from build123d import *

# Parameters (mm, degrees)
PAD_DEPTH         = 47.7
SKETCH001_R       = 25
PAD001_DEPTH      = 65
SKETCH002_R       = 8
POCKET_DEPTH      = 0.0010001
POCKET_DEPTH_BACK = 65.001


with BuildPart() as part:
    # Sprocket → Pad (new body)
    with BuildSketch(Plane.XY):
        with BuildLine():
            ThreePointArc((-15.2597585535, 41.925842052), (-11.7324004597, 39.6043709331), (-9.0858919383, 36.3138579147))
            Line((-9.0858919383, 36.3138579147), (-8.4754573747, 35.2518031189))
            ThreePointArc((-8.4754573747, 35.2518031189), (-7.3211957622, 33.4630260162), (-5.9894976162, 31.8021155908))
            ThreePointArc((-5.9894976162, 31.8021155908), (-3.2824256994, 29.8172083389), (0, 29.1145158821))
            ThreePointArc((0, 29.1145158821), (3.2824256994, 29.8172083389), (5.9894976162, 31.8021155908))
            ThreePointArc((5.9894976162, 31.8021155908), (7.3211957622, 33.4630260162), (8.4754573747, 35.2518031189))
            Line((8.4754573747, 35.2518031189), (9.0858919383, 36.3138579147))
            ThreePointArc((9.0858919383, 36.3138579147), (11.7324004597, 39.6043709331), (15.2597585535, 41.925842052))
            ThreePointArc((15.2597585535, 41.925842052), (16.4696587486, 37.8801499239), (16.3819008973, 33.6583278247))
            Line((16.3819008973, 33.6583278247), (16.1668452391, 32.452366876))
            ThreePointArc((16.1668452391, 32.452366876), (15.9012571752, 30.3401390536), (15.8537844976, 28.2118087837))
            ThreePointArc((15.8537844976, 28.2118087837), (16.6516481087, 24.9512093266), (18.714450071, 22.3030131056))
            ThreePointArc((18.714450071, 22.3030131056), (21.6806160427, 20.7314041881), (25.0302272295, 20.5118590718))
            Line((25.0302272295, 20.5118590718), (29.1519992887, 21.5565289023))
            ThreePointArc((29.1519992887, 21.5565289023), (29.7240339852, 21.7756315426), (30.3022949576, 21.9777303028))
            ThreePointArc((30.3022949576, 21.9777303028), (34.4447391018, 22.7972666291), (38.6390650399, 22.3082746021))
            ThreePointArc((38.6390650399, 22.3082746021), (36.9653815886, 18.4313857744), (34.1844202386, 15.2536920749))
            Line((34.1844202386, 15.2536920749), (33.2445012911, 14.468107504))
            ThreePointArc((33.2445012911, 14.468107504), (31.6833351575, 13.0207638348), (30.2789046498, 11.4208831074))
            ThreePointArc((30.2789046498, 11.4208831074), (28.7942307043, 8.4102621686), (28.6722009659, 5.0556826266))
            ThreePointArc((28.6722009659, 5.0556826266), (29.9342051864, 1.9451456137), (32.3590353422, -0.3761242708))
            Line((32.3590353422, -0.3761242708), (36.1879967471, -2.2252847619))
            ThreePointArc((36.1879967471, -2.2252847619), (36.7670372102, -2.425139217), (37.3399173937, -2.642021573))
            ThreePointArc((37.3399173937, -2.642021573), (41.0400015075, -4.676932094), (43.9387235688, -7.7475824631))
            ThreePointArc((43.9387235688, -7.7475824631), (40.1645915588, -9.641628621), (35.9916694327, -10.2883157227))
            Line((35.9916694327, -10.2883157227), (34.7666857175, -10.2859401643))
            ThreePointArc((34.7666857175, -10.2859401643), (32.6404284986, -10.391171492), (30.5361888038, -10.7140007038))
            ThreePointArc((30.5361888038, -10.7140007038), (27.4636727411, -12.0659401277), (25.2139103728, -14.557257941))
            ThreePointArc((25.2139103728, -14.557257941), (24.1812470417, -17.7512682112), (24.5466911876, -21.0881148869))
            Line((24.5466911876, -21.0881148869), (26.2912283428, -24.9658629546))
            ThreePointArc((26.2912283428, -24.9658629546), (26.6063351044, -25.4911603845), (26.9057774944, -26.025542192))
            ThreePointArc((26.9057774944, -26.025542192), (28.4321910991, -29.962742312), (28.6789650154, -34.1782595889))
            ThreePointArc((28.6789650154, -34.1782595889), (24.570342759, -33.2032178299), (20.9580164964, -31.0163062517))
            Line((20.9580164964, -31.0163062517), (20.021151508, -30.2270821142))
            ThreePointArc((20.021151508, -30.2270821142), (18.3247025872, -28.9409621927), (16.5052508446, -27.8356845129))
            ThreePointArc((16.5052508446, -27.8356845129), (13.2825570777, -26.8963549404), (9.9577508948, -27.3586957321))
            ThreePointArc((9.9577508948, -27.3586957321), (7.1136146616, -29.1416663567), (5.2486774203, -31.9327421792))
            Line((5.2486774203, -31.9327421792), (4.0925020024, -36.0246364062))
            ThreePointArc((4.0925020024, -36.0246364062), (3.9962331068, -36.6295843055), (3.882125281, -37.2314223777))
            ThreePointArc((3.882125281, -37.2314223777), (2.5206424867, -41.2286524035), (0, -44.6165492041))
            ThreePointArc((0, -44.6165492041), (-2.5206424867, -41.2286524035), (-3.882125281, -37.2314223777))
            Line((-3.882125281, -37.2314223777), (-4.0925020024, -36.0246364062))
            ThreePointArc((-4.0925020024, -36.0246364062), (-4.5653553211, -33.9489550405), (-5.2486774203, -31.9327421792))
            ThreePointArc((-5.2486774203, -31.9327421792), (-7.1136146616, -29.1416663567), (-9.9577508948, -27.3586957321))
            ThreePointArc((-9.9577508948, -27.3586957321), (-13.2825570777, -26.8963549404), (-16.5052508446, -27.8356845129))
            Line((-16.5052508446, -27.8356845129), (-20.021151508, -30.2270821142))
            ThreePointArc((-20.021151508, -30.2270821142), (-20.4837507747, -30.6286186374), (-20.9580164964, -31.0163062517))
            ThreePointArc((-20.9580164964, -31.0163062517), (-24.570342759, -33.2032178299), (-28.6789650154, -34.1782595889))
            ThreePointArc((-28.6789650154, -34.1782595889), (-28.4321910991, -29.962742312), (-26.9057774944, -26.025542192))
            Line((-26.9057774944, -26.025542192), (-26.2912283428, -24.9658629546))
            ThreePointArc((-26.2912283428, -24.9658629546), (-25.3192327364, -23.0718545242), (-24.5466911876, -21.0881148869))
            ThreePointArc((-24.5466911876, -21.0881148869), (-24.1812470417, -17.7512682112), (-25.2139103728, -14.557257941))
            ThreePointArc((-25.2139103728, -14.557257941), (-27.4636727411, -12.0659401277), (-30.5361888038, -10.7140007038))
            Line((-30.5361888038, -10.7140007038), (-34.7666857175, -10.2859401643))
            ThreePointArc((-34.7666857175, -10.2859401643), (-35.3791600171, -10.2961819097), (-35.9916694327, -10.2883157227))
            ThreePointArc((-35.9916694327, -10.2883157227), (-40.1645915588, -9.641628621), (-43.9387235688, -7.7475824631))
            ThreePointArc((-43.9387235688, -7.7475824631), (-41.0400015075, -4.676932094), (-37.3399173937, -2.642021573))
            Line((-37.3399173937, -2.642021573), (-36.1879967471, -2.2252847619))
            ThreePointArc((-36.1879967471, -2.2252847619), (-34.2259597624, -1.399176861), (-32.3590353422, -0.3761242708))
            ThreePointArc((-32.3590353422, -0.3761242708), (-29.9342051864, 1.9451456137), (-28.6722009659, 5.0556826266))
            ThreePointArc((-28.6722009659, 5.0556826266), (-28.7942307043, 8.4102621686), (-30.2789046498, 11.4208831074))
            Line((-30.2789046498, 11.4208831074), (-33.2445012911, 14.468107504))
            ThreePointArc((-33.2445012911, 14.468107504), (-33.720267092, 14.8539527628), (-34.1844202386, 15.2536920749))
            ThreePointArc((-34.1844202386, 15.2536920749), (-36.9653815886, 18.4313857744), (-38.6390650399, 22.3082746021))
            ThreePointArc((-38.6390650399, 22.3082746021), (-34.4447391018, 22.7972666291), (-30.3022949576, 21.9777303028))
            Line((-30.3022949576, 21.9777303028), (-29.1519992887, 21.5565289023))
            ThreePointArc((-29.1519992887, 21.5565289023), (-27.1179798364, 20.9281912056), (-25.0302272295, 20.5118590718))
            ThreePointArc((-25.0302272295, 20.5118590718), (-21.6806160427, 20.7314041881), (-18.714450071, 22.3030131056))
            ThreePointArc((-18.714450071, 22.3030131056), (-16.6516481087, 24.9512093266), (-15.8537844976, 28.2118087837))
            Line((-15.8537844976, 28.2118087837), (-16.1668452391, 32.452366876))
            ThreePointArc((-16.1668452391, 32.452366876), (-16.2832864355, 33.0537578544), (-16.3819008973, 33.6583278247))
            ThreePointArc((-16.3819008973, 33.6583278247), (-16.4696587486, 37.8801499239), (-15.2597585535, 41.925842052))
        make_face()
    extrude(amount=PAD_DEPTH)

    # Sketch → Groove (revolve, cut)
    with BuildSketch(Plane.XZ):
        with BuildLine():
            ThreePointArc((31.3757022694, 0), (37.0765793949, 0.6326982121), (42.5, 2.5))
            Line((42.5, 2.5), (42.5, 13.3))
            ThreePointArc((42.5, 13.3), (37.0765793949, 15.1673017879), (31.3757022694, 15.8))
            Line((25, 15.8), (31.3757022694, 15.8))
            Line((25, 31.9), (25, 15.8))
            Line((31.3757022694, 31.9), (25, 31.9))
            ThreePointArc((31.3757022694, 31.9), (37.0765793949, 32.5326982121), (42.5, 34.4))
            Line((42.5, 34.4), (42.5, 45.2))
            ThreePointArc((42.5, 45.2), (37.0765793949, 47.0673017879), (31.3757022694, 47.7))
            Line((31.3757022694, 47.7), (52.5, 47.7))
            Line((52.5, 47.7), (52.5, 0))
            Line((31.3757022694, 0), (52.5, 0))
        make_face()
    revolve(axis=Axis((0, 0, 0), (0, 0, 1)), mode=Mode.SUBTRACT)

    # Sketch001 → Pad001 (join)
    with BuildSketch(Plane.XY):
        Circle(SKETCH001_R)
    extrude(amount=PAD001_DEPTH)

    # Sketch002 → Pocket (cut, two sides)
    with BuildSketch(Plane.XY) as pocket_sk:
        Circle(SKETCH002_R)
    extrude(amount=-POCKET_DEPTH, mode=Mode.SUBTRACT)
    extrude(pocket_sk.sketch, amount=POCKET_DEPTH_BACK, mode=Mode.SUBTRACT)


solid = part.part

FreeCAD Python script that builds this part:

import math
import FreeCAD as App
import Part
import Sketcher

doc = App.newDocument("Part")
body = doc.addObject("PartDesign::Body", "Body")

sketch1 = body.newObject("Sketcher::SketchObject", "Sketch")
sketch1.AttachmentSupport = (doc.getObject("XY_Plane"), [""])
sketch1.MapMode = "FlatFace"
sketch1.addGeometry(Part.ArcOfCircle(Part.Circle(App.Vector(-20.891246, 29.528524, 0), App.Vector(0, 0, 1), 13.616429), math.radians(29.888889), math.radians(65.570053)), False)
sketch1.addGeometry(Part.ArcOfCircle(Part.Circle(App.Vector(-2.976946, 36.048796, 0), App.Vector(0, 0, 1), 13.616429), math.radians(154.429947), math.radians(190.111111)), False)
sketch1.addGeometry(Part.ArcOfCircle(Part.Circle(App.Vector(4.116686, 36.691628, 0), App.Vector(0, 0, 1), 20.7218), math.radians(-171.582679), math.radians(-168.195099)), False)
sketch1.addGeometry(Part.LineSegment(App.Vector(-16.166845, 32.452367, 0), App.Vector(-15.853784, 28.211809, 0)), False)
sketch1.addGeometry(Part.ArcOfCircle(Part.Circle(App.Vector(-23.868193, 28.445004, 0), App.Vector(0, 0, 1), 8.0178), math.radians(-50), math.radians(-1.666667)), False)
sketch1.addGeometry(Part.ArcOfCircle(Part.Circle(App.Vector(-23.868193, 28.445004, 0), App.Vector(0, 0, 1), 8.0178), math.radians(-98.333333), math.radians(-50)), False)
sketch1.addGeometry(Part.ArcOfCircle(Part.Circle(App.Vector(-22.026978, 41.014871, 0), App.Vector(0, 0, 1), 20.7218), math.radians(-110.111111), math.radians(-98.333333)), False)
sketch1.addGeometry(Part.LineSegment(App.Vector(-29.151999, 21.556529, 0), App.Vector(-30.302295, 21.97773, 0)), False)
sketch1.addGeometry(Part.ArcOfCircle(Part.Circle(App.Vector(-34.984193, 9.191527, 0), App.Vector(0, 0, 1), 13.616429), math.radians(69.888889), math.radians(105.570053)), False)
sketch1.addGeometry(Part.ArcOfCircle(Part.Circle(App.Vector(-25.452193, 25.701436, 0), App.Vector(0, 0, 1), 13.616429), math.radians(-165.570053), math.radians(-129.888889)), False)
sketch1.addGeometry(Part.ArcOfCircle(Part.Circle(App.Vector(-20.431359, 30.753573, 0), App.Vector(0, 0, 1), 20.7218), math.radians(-131.582679), math.radians(-128.195099)), False)
sketch1.addGeometry(Part.LineSegment(App.Vector(-33.244501, 14.468108, 0), App.Vector(-30.278905, 11.420883, 0)), False)
sketch1.addGeometry(Part.ArcOfCircle(Part.Circle(App.Vector(-36.568193, 6.447959, 0), App.Vector(0, 0, 1), 8.0178), math.radians(-10), math.radians(38.333333)), False)
sketch1.addGeometry(Part.ArcOfCircle(Part.Circle(App.Vector(-36.568193, 6.447959, 0), App.Vector(0, 0, 1), 8.0178), math.radians(-58.333333), math.radians(-10)), False)
sketch1.addGeometry(Part.ArcOfCircle(Part.Circle(App.Vector(-43.237495, 17.260545, 0), App.Vector(0, 0, 1), 20.7218), math.radians(-70.111111), math.radians(-58.333333)), False)
sketch1.addGeometry(Part.LineSegment(App.Vector(-36.187997, -2.225285, 0), App.Vector(-37.339917, -2.642022, 0)), False)
sketch1.addGeometry(Part.ArcOfCircle(Part.Circle(App.Vector(-32.707646, -15.446287, 0), App.Vector(0, 0, 1), 13.616429), math.radians(109.888889), math.radians(145.570053)), False)
sketch1.addGeometry(Part.ArcOfCircle(Part.Circle(App.Vector(-36.018075, 3.328088, 0), App.Vector(0, 0, 1), 13.616429), math.radians(-125.570053), math.radians(-89.888889)), False)
sketch1.addGeometry(Part.ArcOfCircle(Part.Circle(App.Vector(-35.419345, 10.425579, 0), App.Vector(0, 0, 1), 20.7218), math.radians(-91.582679), math.radians(-88.195099)), False)
sketch1.addGeometry(Part.LineSegment(App.Vector(-34.766686, -10.28594, 0), App.Vector(-30.536189, -10.714001, 0)), False)
sketch1.addGeometry(Part.ArcOfCircle(Part.Circle(App.Vector(-32.157529, -18.566158, 0), App.Vector(0, 0, 1), 8.0178), math.radians(30), math.radians(78.333333)), False)
sketch1.addGeometry(Part.ArcOfCircle(Part.Circle(App.Vector(-32.157529, -18.566158, 0), App.Vector(0, 0, 1), 8.0178), math.radians(-18.333333), math.radians(30)), False)
sketch1.addGeometry(Part.ArcOfCircle(Part.Circle(App.Vector(-44.216707, -14.570181, 0), App.Vector(0, 0, 1), 20.7218), math.radians(-30.111111), math.radians(-18.333333)), False)
sketch1.addGeometry(Part.LineSegment(App.Vector(-26.291228, -24.965863, 0), App.Vector(-26.905777, -26.025542, 0)), False)
sketch1.addGeometry(Part.ArcOfCircle(Part.Circle(App.Vector(-15.126829, -32.856612, 0), App.Vector(0, 0, 1), 13.616429), math.radians(149.888889), math.radians(185.570053)), False)
sketch1.addGeometry(Part.ArcOfCircle(Part.Circle(App.Vector(-29.7307, -20.602509, 0), App.Vector(0, 0, 1), 13.616429), math.radians(-85.570053), math.radians(-49.888889)), False)
sketch1.addGeometry(Part.ArcOfCircle(Part.Circle(App.Vector(-33.834225, -14.780659, 0), App.Vector(0, 0, 1), 20.7218), math.radians(-51.582679), math.radians(-48.195099)), False)
sketch1.addGeometry(Part.LineSegment(App.Vector(-20.021152, -30.227082, 0), App.Vector(-16.505251, -27.835685, 0)), False)
sketch1.addGeometry(Part.ArcOfCircle(Part.Circle(App.Vector(-12.7, -34.892963, 0), App.Vector(0, 0, 1), 8.0178), math.radians(70), math.radians(118.333333)), False)
sketch1.addGeometry(Part.ArcOfCircle(Part.Circle(App.Vector(-12.7, -34.892963, 0), App.Vector(0, 0, 1), 8.0178), math.radians(21.666667), math.radians(70)), False)
sketch1.addGeometry(Part.ArcOfCircle(Part.Circle(App.Vector(-24.506431, -39.583358, 0), App.Vector(0, 0, 1), 20.7218), math.radians(9.888889), math.radians(21.666667)), False)
sketch1.addGeometry(Part.LineSegment(App.Vector(-4.092502, -36.024636, 0), App.Vector(-3.882125, -37.231422, 0)), False)
sketch1.addGeometry(Part.ArcOfCircle(Part.Circle(App.Vector(9.532, -34.892963, 0), App.Vector(0, 0, 1), 13.616429), math.radians(-170.111111), math.radians(-134.429947)), False)
sketch1.addGeometry(Part.ArcOfCircle(Part.Circle(App.Vector(-9.532, -34.892963, 0), App.Vector(0, 0, 1), 13.616429), math.radians(-45.570053), math.radians(-9.888889)), False)
sketch1.addGeometry(Part.ArcOfCircle(Part.Circle(App.Vector(-16.417696, -33.070863, 0), App.Vector(0, 0, 1), 20.7218), math.radians(-11.582679), math.radians(-8.195099)), False)
sketch1.addGeometry(Part.LineSegment(App.Vector(4.092502, -36.024636, 0), App.Vector(5.248677, -31.932742, 0)), False)
sketch1.addGeometry(Part.ArcOfCircle(Part.Circle(App.Vector(12.7, -34.892963, 0), App.Vector(0, 0, 1), 8.0178), math.radians(110), math.radians(158.333333)), False)
sketch1.addGeometry(Part.ArcOfCircle(Part.Circle(App.Vector(12.7, -34.892963, 0), App.Vector(0, 0, 1), 8.0178), math.radians(61.666667), math.radians(110)), False)
sketch1.addGeometry(Part.ArcOfCircle(Part.Circle(App.Vector(6.670677, -46.075042, 0), App.Vector(0, 0, 1), 20.7218), math.radians(49.888889), math.radians(61.666667)), False)
sketch1.addGeometry(Part.LineSegment(App.Vector(20.021152, -30.227082, 0), App.Vector(20.958016, -31.016306, 0)), False)
sketch1.addGeometry(Part.ArcOfCircle(Part.Circle(App.Vector(29.7307, -20.602509, 0), App.Vector(0, 0, 1), 13.616429), math.radians(-130.111111), math.radians(-94.429947)), False)
sketch1.addGeometry(Part.ArcOfCircle(Part.Circle(App.Vector(15.126829, -32.856612, 0), App.Vector(0, 0, 1), 13.616429), math.radians(-5.570053), math.radians(30.111111)), False)
sketch1.addGeometry(Part.ArcOfCircle(Part.Circle(App.Vector(8.680856, -35.886842, 0), App.Vector(0, 0, 1), 20.7218), math.radians(28.417321), math.radians(31.804901)), False)
sketch1.addGeometry(Part.LineSegment(App.Vector(26.291228, -24.965863, 0), App.Vector(24.546691, -21.088115, 0)), False)
sketch1.addGeometry(Part.ArcOfCircle(Part.Circle(App.Vector(32.157529, -18.566158, 0), App.Vector(0, 0, 1), 8.0178), math.radians(150), math.radians(198.333333)), False)
sketch1.addGeometry(Part.ArcOfCircle(Part.Circle(App.Vector(32.157529, -18.566158, 0), App.Vector(0, 0, 1), 8.0178), math.radians(101.666667), math.radians(150)), False)
sketch1.addGeometry(Part.ArcOfCircle(Part.Circle(App.Vector(34.726501, -31.007701, 0), App.Vector(0, 0, 1), 20.7218), math.radians(89.888889), math.radians(101.666667)), False)
sketch1.addGeometry(Part.LineSegment(App.Vector(34.766686, -10.28594, 0), App.Vector(35.991669, -10.288316, 0)), False)
sketch1.addGeometry(Part.ArcOfCircle(Part.Circle(App.Vector(36.018075, 3.328088, 0), App.Vector(0, 0, 1), 13.616429), math.radians(-90.111111), math.radians(-54.429947)), False)
sketch1.addGeometry(Part.ArcOfCircle(Part.Circle(App.Vector(32.707646, -15.446287, 0), App.Vector(0, 0, 1), 13.616429), math.radians(34.429947), math.radians(70.111111)), False)
sketch1.addGeometry(Part.ArcOfCircle(Part.Circle(App.Vector(29.717539, -21.910969, 0), App.Vector(0, 0, 1), 20.7218), math.radians(68.417321), math.radians(71.804901)), False)
sketch1.addGeometry(Part.LineSegment(App.Vector(36.187997, -2.225285, 0), App.Vector(32.359035, -0.376124, 0)), False)
sketch1.addGeometry(Part.ArcOfCircle(Part.Circle(App.Vector(36.568193, 6.447959, 0), App.Vector(0, 0, 1), 8.0178), math.radians(-170), math.radians(-121.666667)), False)
sketch1.addGeometry(Part.ArcOfCircle(Part.Circle(App.Vector(36.568193, 6.447959, 0), App.Vector(0, 0, 1), 8.0178), math.radians(141.666667), math.radians(190)), False)
sketch1.addGeometry(Part.ArcOfCircle(Part.Circle(App.Vector(46.533409, -1.431513, 0), App.Vector(0, 0, 1), 20.7218), math.radians(129.888889), math.radians(141.666667)), False)
sketch1.addGeometry(Part.LineSegment(App.Vector(33.244501, 14.468108, 0), App.Vector(34.18442, 15.253692, 0)), False)
sketch1.addGeometry(Part.ArcOfCircle(Part.Circle(App.Vector(25.452193, 25.701436, 0), App.Vector(0, 0, 1), 13.616429), math.radians(-50.111111), math.radians(-14.429947)), False)
sketch1.addGeometry(Part.ArcOfCircle(Part.Circle(App.Vector(34.984193, 9.191527, 0), App.Vector(0, 0, 1), 13.616429), math.radians(74.429947), math.radians(110.111111)), False)
sketch1.addGeometry(Part.ArcOfCircle(Part.Circle(App.Vector(36.849055, 2.31729, 0), App.Vector(0, 0, 1), 20.7218), math.radians(108.417321), math.radians(111.804901)), False)
sketch1.addGeometry(Part.LineSegment(App.Vector(29.151999, 21.556529, 0), App.Vector(25.030227, 20.511859, 0)), False)
sketch1.addGeometry(Part.ArcOfCircle(Part.Circle(App.Vector(23.868193, 28.445004, 0), App.Vector(0, 0, 1), 8.0178), math.radians(-130), math.radians(-81.666667)), False)
sketch1.addGeometry(Part.ArcOfCircle(Part.Circle(App.Vector(23.868193, 28.445004, 0), App.Vector(0, 0, 1), 8.0178), math.radians(-178.333333), math.radians(-130)), False)
sketch1.addGeometry(Part.ArcOfCircle(Part.Circle(App.Vector(36.566818, 28.814497, 0), App.Vector(0, 0, 1), 20.7218), math.radians(169.888889), math.radians(181.666667)), False)
sketch1.addGeometry(Part.LineSegment(App.Vector(16.166845, 32.452367, 0), App.Vector(16.381901, 33.658328, 0)), False)
sketch1.addGeometry(Part.ArcOfCircle(Part.Circle(App.Vector(2.976946, 36.048796, 0), App.Vector(0, 0, 1), 13.616429), math.radians(-10.111111), math.radians(25.570053)), False)
sketch1.addGeometry(Part.ArcOfCircle(Part.Circle(App.Vector(20.891246, 29.528524, 0), App.Vector(0, 0, 1), 13.616429), math.radians(114.429947), math.radians(150.111111)), False)
sketch1.addGeometry(Part.LineSegment(App.Vector(9.085892, 36.313858, 0), App.Vector(8.475457, 35.251803, 0)), False)
sketch1.addGeometry(Part.ArcOfCircle(Part.Circle(App.Vector(-9.490207, 45.577883, 0), App.Vector(0, 0, 1), 20.7218), math.radians(-41.666667), math.radians(-29.888889)), False)
sketch1.addGeometry(Part.ArcOfCircle(Part.Circle(App.Vector(0, 37.132316, 0), App.Vector(0, 0, 1), 8.0178), math.radians(-90), math.radians(-41.666667)), False)
sketch1.addGeometry(Part.ArcOfCircle(Part.Circle(App.Vector(0, 37.132316, 0), App.Vector(0, 0, 1), 8.0178), math.radians(-138.333333), math.radians(-90)), False)
sketch1.addGeometry(Part.ArcOfCircle(Part.Circle(App.Vector(9.490207, 45.577883, 0), App.Vector(0, 0, 1), 20.7218), math.radians(-150.111111), math.radians(-138.333333)), False)
sketch1.addGeometry(Part.LineSegment(App.Vector(-8.475457, 35.251803, 0), App.Vector(-9.085892, 36.313858, 0)), False)
sketch1.addConstraint(Sketcher.Constraint("Coincident", 0, 2, 1, 1))
sketch1.addConstraint(Sketcher.Constraint("Coincident", 1, 2, 2, 1))
sketch1.addConstraint(Sketcher.Constraint("Coincident", 2, 2, 3, 1))
sketch1.addConstraint(Sketcher.Constraint("Coincident", 3, 2, 4, 2))
sketch1.addConstraint(Sketcher.Constraint("Tangent", 4, 1, 5, 2))
sketch1.addConstraint(Sketcher.Constraint("Tangent", 5, 1, 6, 2))
sketch1.addConstraint(Sketcher.Constraint("Tangent", 6, 1, 7, 1))
sketch1.addConstraint(Sketcher.Constraint("Tangent", 7, 2, 8, 1))
sketch1.addConstraint(Sketcher.Constraint("Coincident", 8, 2, 9, 1))
sketch1.addConstraint(Sketcher.Constraint("Coincident", 9, 2, 10, 1))
sketch1.addConstraint(Sketcher.Constraint("Coincident", 10, 2, 11, 1))
sketch1.addConstraint(Sketcher.Constraint("Coincident", 11, 2, 12, 2))
sketch1.addConstraint(Sketcher.Constraint("Tangent", 12, 1, 13, 2))
sketch1.addConstraint(Sketcher.Constraint("Tangent", 13, 1, 14, 2))
sketch1.addConstraint(Sketcher.Constraint("Tangent", 14, 1, 15, 1))
sketch1.addConstraint(Sketcher.Constraint("Tangent", 15, 2, 16, 1))
sketch1.addConstraint(Sketcher.Constraint("Coincident", 16, 2, 17, 1))
sketch1.addConstraint(Sketcher.Constraint("Coincident", 17, 2, 18, 1))
sketch1.addConstraint(Sketcher.Constraint("Coincident", 18, 2, 19, 1))
sketch1.addConstraint(Sketcher.Constraint("Coincident", 19, 2, 20, 2))
sketch1.addConstraint(Sketcher.Constraint("Tangent", 20, 1, 21, 2))
sketch1.addConstraint(Sketcher.Constraint("Tangent", 21, 1, 22, 2))
sketch1.addConstraint(Sketcher.Constraint("Tangent", 22, 1, 23, 1))
sketch1.addConstraint(Sketcher.Constraint("Tangent", 23, 2, 24, 1))
sketch1.addConstraint(Sketcher.Constraint("Coincident", 24, 2, 25, 1))
sketch1.addConstraint(Sketcher.Constraint("Coincident", 25, 2, 26, 1))
sketch1.addConstraint(Sketcher.Constraint("Coincident", 26, 2, 27, 1))
sketch1.addConstraint(Sketcher.Constraint("Coincident", 27, 2, 28, 2))
sketch1.addConstraint(Sketcher.Constraint("Tangent", 28, 1, 29, 2))
sketch1.addConstraint(Sketcher.Constraint("Tangent", 29, 1, 30, 2))
sketch1.addConstraint(Sketcher.Constraint("Tangent", 30, 1, 31, 1))
sketch1.addConstraint(Sketcher.Constraint("Tangent", 31, 2, 32, 1))
sketch1.addConstraint(Sketcher.Constraint("Coincident", 32, 2, 33, 1))
sketch1.addConstraint(Sketcher.Constraint("Coincident", 33, 2, 34, 1))
sketch1.addConstraint(Sketcher.Constraint("Coincident", 34, 2, 35, 1))
sketch1.addConstraint(Sketcher.Constraint("Coincident", 35, 2, 36, 2))
sketch1.addConstraint(Sketcher.Constraint("Tangent", 36, 1, 37, 2))
sketch1.addConstraint(Sketcher.Constraint("Tangent", 37, 1, 38, 2))
sketch1.addConstraint(Sketcher.Constraint("Tangent", 38, 1, 39, 1))
sketch1.addConstraint(Sketcher.Constraint("Tangent", 39, 2, 40, 1))
sketch1.addConstraint(Sketcher.Constraint("Coincident", 40, 2, 41, 1))
sketch1.addConstraint(Sketcher.Constraint("Coincident", 41, 2, 42, 1))
sketch1.addConstraint(Sketcher.Constraint("Coincident", 42, 2, 43, 1))
sketch1.addConstraint(Sketcher.Constraint("Coincident", 43, 2, 44, 2))
sketch1.addConstraint(Sketcher.Constraint("Tangent", 44, 1, 45, 2))
sketch1.addConstraint(Sketcher.Constraint("Tangent", 45, 1, 46, 2))
sketch1.addConstraint(Sketcher.Constraint("Tangent", 46, 1, 47, 1))
sketch1.addConstraint(Sketcher.Constraint("Tangent", 47, 2, 48, 1))
sketch1.addConstraint(Sketcher.Constraint("Coincident", 48, 2, 49, 1))
sketch1.addConstraint(Sketcher.Constraint("Coincident", 49, 2, 50, 1))
sketch1.addConstraint(Sketcher.Constraint("Coincident", 50, 2, 51, 1))
sketch1.addConstraint(Sketcher.Constraint("Coincident", 51, 2, 52, 2))
sketch1.addConstraint(Sketcher.Constraint("Tangent", 52, 1, 53, 2))
sketch1.addConstraint(Sketcher.Constraint("Tangent", 53, 1, 54, 2))
sketch1.addConstraint(Sketcher.Constraint("Tangent", 54, 1, 55, 1))
sketch1.addConstraint(Sketcher.Constraint("Tangent", 55, 2, 56, 1))
sketch1.addConstraint(Sketcher.Constraint("Coincident", 56, 2, 57, 1))
sketch1.addConstraint(Sketcher.Constraint("Coincident", 57, 2, 58, 1))
sketch1.addConstraint(Sketcher.Constraint("Coincident", 58, 2, 59, 1))
sketch1.addConstraint(Sketcher.Constraint("Coincident", 59, 2, 60, 2))
sketch1.addConstraint(Sketcher.Constraint("Tangent", 60, 1, 61, 2))
sketch1.addConstraint(Sketcher.Constraint("Tangent", 61, 1, 62, 2))
sketch1.addConstraint(Sketcher.Constraint("Tangent", 62, 1, 63, 1))
sketch1.addConstraint(Sketcher.Constraint("Tangent", 63, 2, 64, 1))
sketch1.addConstraint(Sketcher.Constraint("Coincident", 64, 2, 65, 1))
sketch1.addConstraint(Sketcher.Constraint("Tangent", 65, 2, 66, 1))
sketch1.addConstraint(Sketcher.Constraint("Tangent", 66, 2, 67, 2))
sketch1.addConstraint(Sketcher.Constraint("Tangent", 67, 1, 68, 2))
sketch1.addConstraint(Sketcher.Constraint("Tangent", 68, 1, 69, 2))
sketch1.addConstraint(Sketcher.Constraint("Tangent", 69, 1, 70, 2))
sketch1.addConstraint(Sketcher.Constraint("Tangent", 70, 1, 71, 1))
sketch1.addConstraint(Sketcher.Constraint("Tangent", 71, 2, 0, 1))
sketch1.addConstraint(Sketcher.Constraint("Equal", 0, 1))
sketch1.addConstraint(Sketcher.Constraint("Equal", 4, 5))
sketch1.addConstraint(Sketcher.Constraint("Equal", 2, 6))
sketch1.addConstraint(Sketcher.Constraint("Equal", 1, 8))
sketch1.addConstraint(Sketcher.Constraint("Equal", 8, 9))
sketch1.addConstraint(Sketcher.Constraint("Equal", 6, 10))
sketch1.addConstraint(Sketcher.Constraint("Equal", 5, 12))
sketch1.addConstraint(Sketcher.Constraint("Equal", 12, 13))
sketch1.addConstraint(Sketcher.Constraint("Equal", 10, 14))
sketch1.addConstraint(Sketcher.Constraint("Equal", 9, 16))
sketch1.addConstraint(Sketcher.Constraint("Equal", 16, 17))
sketch1.addConstraint(Sketcher.Constraint("Equal", 14, 18))
sketch1.addConstraint(Sketcher.Constraint("Equal", 13, 20))
sketch1.addConstraint(Sketcher.Constraint("Equal", 20, 21))
sketch1.addConstraint(Sketcher.Constraint("Equal", 18, 22))
sketch1.addConstraint(Sketcher.Constraint("Equal", 17, 24))
sketch1.addConstraint(Sketcher.Constraint("Equal", 24, 25))
sketch1.addConstraint(Sketcher.Constraint("Equal", 22, 26))
sketch1.addConstraint(Sketcher.Constraint("Equal", 21, 28))
sketch1.addConstraint(Sketcher.Constraint("Equal", 28, 29))
sketch1.addConstraint(Sketcher.Constraint("Equal", 26, 30))
sketch1.addConstraint(Sketcher.Constraint("Equal", 25, 32))
sketch1.addConstraint(Sketcher.Constraint("Equal", 32, 33))
sketch1.addConstraint(Sketcher.Constraint("Equal", 30, 34))
sketch1.addConstraint(Sketcher.Constraint("Equal", 29, 36))
sketch1.addConstraint(Sketcher.Constraint("Equal", 36, 37))
sketch1.addConstraint(Sketcher.Constraint("Equal", 34, 38))
sketch1.addConstraint(Sketcher.Constraint("Equal", 33, 40))
sketch1.addConstraint(Sketcher.Constraint("Equal", 40, 41))
sketch1.addConstraint(Sketcher.Constraint("Equal", 38, 42))
sketch1.addConstraint(Sketcher.Constraint("Equal", 37, 44))
sketch1.addConstraint(Sketcher.Constraint("Equal", 44, 45))
sketch1.addConstraint(Sketcher.Constraint("Equal", 42, 46))
sketch1.addConstraint(Sketcher.Constraint("Equal", 41, 48))
sketch1.addConstraint(Sketcher.Constraint("Equal", 48, 49))
sketch1.addConstraint(Sketcher.Constraint("Equal", 46, 50))
sketch1.addConstraint(Sketcher.Constraint("Equal", 45, 52))
sketch1.addConstraint(Sketcher.Constraint("Equal", 52, 53))
sketch1.addConstraint(Sketcher.Constraint("Equal", 50, 54))
sketch1.addConstraint(Sketcher.Constraint("Equal", 49, 56))
sketch1.addConstraint(Sketcher.Constraint("Equal", 56, 57))
sketch1.addConstraint(Sketcher.Constraint("Equal", 54, 58))
sketch1.addConstraint(Sketcher.Constraint("Equal", 53, 60))
sketch1.addConstraint(Sketcher.Constraint("Equal", 60, 61))
sketch1.addConstraint(Sketcher.Constraint("Equal", 58, 62))
sketch1.addConstraint(Sketcher.Constraint("Equal", 57, 64))
sketch1.addConstraint(Sketcher.Constraint("Equal", 64, 65))
sketch1.addConstraint(Sketcher.Constraint("Equal", 62, 67))
sketch1.addConstraint(Sketcher.Constraint("Equal", 61, 68))
sketch1.addConstraint(Sketcher.Constraint("Equal", 68, 69))
sketch1.addConstraint(Sketcher.Constraint("Equal", 67, 70))
sketch1.addConstraint(Sketcher.Constraint("Symmetric", 32, 3, 33, 3, -2))
sketch1.addConstraint(Sketcher.Constraint("Symmetric", 28, 3, 36, 3, -2))
sketch1.addConstraint(Sketcher.Constraint("Symmetric", 25, 3, 40, 3, -2))
sketch1.addConstraint(Sketcher.Constraint("Symmetric", 24, 3, 41, 3, -2))
sketch1.addConstraint(Sketcher.Constraint("Symmetric", 20, 3, 44, 3, -2))
sketch1.addConstraint(Sketcher.Constraint("Symmetric", 17, 3, 48, 3, -2))
sketch1.addConstraint(Sketcher.Constraint("Symmetric", 16, 3, 49, 3, -2))
sketch1.addConstraint(Sketcher.Constraint("Symmetric", 12, 3, 52, 3, -2))
sketch1.addConstraint(Sketcher.Constraint("Symmetric", 9, 3, 56, 3, -2))
sketch1.addConstraint(Sketcher.Constraint("Symmetric", 8, 3, 57, 3, -2))
sketch1.addConstraint(Sketcher.Constraint("Symmetric", 4, 3, 60, 3, -2))
sketch1.addConstraint(Sketcher.Constraint("Symmetric", 1, 3, 64, 3, -2))
sketch1.addConstraint(Sketcher.Constraint("Symmetric", 0, 3, 65, 3, -2))
sketch1.addConstraint(Sketcher.Constraint("Symmetric", 67, 3, 70, 3, -2))
sketch1.addConstraint(Sketcher.Constraint("Symmetric", 30, 1, 34, 2, -2))
sketch1.addConstraint(Sketcher.Constraint("Symmetric", 26, 2, 38, 1, -2))
sketch1.addConstraint(Sketcher.Constraint("Symmetric", 22, 1, 42, 2, -2))
sketch1.addConstraint(Sketcher.Constraint("Symmetric", 18, 2, 46, 1, -2))
sketch1.addConstraint(Sketcher.Constraint("Symmetric", 14, 1, 50, 2, -2))
sketch1.addConstraint(Sketcher.Constraint("Symmetric", 10, 2, 54, 1, -2))
sketch1.addConstraint(Sketcher.Constraint("Symmetric", 6, 1, 58, 2, -2))
sketch1.addConstraint(Sketcher.Constraint("Symmetric", 2, 2, 62, 1, -2))
sketch1.addConstraint(Sketcher.Constraint("PointOnObject", 68, 1, -2))
sketch1.addConstraint(Sketcher.Constraint("Horizontal", 29, 3, 32, 3))
sketch1.addConstraint(Sketcher.Constraint("Horizontal", 31, 2, 33, 2))
sketch1.addConstraint(Sketcher.Constraint("Horizontal", 29, 1, 35, 2))
sketch1.addConstraint(Sketcher.Constraint("Horizontal", 28, 1, 36, 1))
sketch1.addConstraint(Sketcher.Constraint("Horizontal", 27, 2, 37, 1))
sketch1.addConstraint(Sketcher.Constraint("Horizontal", 25, 2, 39, 2))
sketch1.addConstraint(Sketcher.Constraint("Horizontal", 23, 2, 41, 2))
sketch1.addConstraint(Sketcher.Constraint("Horizontal", 21, 1, 43, 2))
sketch1.addConstraint(Sketcher.Constraint("Horizontal", 20, 1, 44, 1))
sketch1.addConstraint(Sketcher.Constraint("Horizontal", 19, 2, 45, 1))
sketch1.addConstraint(Sketcher.Constraint("Horizontal", 17, 2, 47, 2))
sketch1.addConstraint(Sketcher.Constraint("Horizontal", 15, 2, 49, 2))
sketch1.addConstraint(Sketcher.Constraint("Horizontal", 13, 1, 51, 2))
sketch1.addConstraint(Sketcher.Constraint("Horizontal", 12, 1, 52, 1))
sketch1.addConstraint(Sketcher.Constraint("Horizontal", 11, 2, 53, 1))
sketch1.addConstraint(Sketcher.Constraint("Horizontal", 9, 2, 55, 2))
sketch1.addConstraint(Sketcher.Constraint("Horizontal", 7, 2, 57, 2))
sketch1.addConstraint(Sketcher.Constraint("Horizontal", 5, 1, 59, 2))
sketch1.addConstraint(Sketcher.Constraint("Horizontal", 4, 1, 60, 1))
sketch1.addConstraint(Sketcher.Constraint("Horizontal", 3, 2, 61, 1))
sketch1.addConstraint(Sketcher.Constraint("Horizontal", 1, 2, 63, 2))
sketch1.addConstraint(Sketcher.Constraint("Equal", 3, 11))
sketch1.addConstraint(Sketcher.Constraint("Equal", 7, 15))
sketch1.addConstraint(Sketcher.Constraint("Equal", 11, 19))
sketch1.addConstraint(Sketcher.Constraint("Equal", 15, 23))
sketch1.addConstraint(Sketcher.Constraint("Equal", 19, 27))
sketch1.addConstraint(Sketcher.Constraint("Equal", 23, 31))
sketch1.addConstraint(Sketcher.Constraint("Equal", 27, 35))
sketch1.addConstraint(Sketcher.Constraint("Equal", 31, 39))
sketch1.addConstraint(Sketcher.Constraint("Equal", 35, 43))
sketch1.addConstraint(Sketcher.Constraint("Equal", 39, 47))
sketch1.addConstraint(Sketcher.Constraint("Equal", 43, 51))
sketch1.addConstraint(Sketcher.Constraint("Equal", 47, 55))
sketch1.addConstraint(Sketcher.Constraint("Equal", 51, 59))
sketch1.addConstraint(Sketcher.Constraint("Equal", 55, 63))
sketch1.addConstraint(Sketcher.Constraint("Equal", 63, 66))
sketch1.addConstraint(Sketcher.Constraint("DistanceX", 28, 3, -1, 1, 12.7))
sketch1.addConstraint(Sketcher.Constraint("Radius", 2, 20.7218))
sketch1.addConstraint(Sketcher.Constraint("Radius", 4, 8.0178))
sketch1.addConstraint(Sketcher.Constraint("Radius", 0, 13.616429))
sketch1.addConstraint(Sketcher.Constraint("DistanceX", -1, 1, 32, 3, 9.532))
sketch1.addConstraint(Sketcher.Constraint("DistanceX", 6, 1, -1, 1, 29.151999))
sketch1.addConstraint(Sketcher.Constraint("DistanceY", 19, 2, -1, 1, 10.714001))
sketch1.addConstraint(Sketcher.Constraint("Distance", 3, 4.252098))
sketch1.addConstraint(Sketcher.Constraint("DistanceX", 25, 3, -1, 1, 29.7307))
sketch1.addConstraint(Sketcher.Constraint("DistanceX", -1, 1, 46, 3, 34.726501))
sketch1.addConstraint(Sketcher.Constraint("DistanceY", 46, 3, -1, 1, 31.007701))
sketch1.addConstraint(Sketcher.Constraint("DistanceX", 1, 2, -1, 1, 16.381901))
sketch1.addConstraint(Sketcher.Constraint("DistanceX", 10, 2, -1, 1, 33.244501))
sketch1.addConstraint(Sketcher.Constraint("DistanceX", 12, 1, -1, 1, 28.672201))
sketch1.addConstraint(Sketcher.Constraint("DistanceY", -1, 1, 2, 3, 36.691628))
sketch1.addConstraint(Sketcher.Constraint("DistanceX", 6, 3, -1, 1, 22.026978))
sketch1.addConstraint(Sketcher.Constraint("DistanceX", 10, 3, -1, 1, 20.431359))
sketch1.addConstraint(Sketcher.Constraint("DistanceY", -1, 1, 12, 3, 6.447959))
sketch1.addConstraint(Sketcher.Constraint("DistanceY", 22, 3, -1, 1, 14.570181))
sketch1.addConstraint(Sketcher.Constraint("DistanceY", 25, 3, -1, 1, 20.602509))
sketch1.addConstraint(Sketcher.Constraint("DistanceX", -1, 1, 50, 3, 29.717539))
sketch1.addConstraint(Sketcher.Constraint("DistanceX", 0, 2, -1, 1, 15.259759))
sketch1.addConstraint(Sketcher.Constraint("DistanceX", 4, 1, -1, 1, 18.71445))
sketch1.addConstraint(Sketcher.Constraint("DistanceX", 20, 1, -1, 1, 25.21391))
sketch1.addConstraint(Sketcher.Constraint("DistanceX", 28, 1, -1, 1, 9.957751))
sketch1.addConstraint(Sketcher.Constraint("DistanceX", -1, 1, 65, 2, 9.085892))
sketch1.addConstraint(Sketcher.Constraint("DistanceX", 0, 3, -1, 1, 20.891246))
pad1 = body.newObject("PartDesign::Pad", "Pad")
pad1.Profile = sketch1
pad1.Length = 47.7

sketch2 = body.newObject("Sketcher::SketchObject", "Sketch001")
sketch2.AttachmentSupport = (doc.getObject("XZ_Plane"), [""])
sketch2.MapMode = "FlatFace"
sketch2.addGeometry(Part.ArcOfCircle(Part.Circle(App.Vector(31, 26, 0), App.Vector(0, 0, 1), 26), math.radians(-90), math.radians(-65)), False)
sketch2.addGeometry(Part.LineSegment(App.Vector(31, 0, 0), App.Vector(52, 0, 0)), False)
sketch2.addGeometry(Part.LineSegment(App.Vector(52, 0, 0), App.Vector(52, 48, 0)), False)
sketch2.addGeometry(Part.LineSegment(App.Vector(52, 48, 0), App.Vector(31, 48, 0)), False)
sketch2.addGeometry(Part.ArcOfCircle(Part.Circle(App.Vector(31, 22, 0), App.Vector(0, 0, 1), 26), math.radians(65), math.radians(90)), False)
sketch2.addGeometry(Part.LineSegment(App.Vector(42, 45, 0), App.Vector(42, 34, 0)), False)
sketch2.addGeometry(Part.ArcOfCircle(Part.Circle(App.Vector(31, 58, 0), App.Vector(0, 0, 1), 26), math.radians(-90), math.radians(-65)), False)
sketch2.addGeometry(Part.LineSegment(App.Vector(31, 32, 0), App.Vector(25, 32, 0)), False)
sketch2.addGeometry(Part.LineSegment(App.Vector(25, 32, 0), App.Vector(25, 16, 0)), False)
sketch2.addGeometry(Part.LineSegment(App.Vector(25, 16, 0), App.Vector(31, 16, 0)), False)
sketch2.addGeometry(Part.ArcOfCircle(Part.Circle(App.Vector(31, -10, 0), App.Vector(0, 0, 1), 26), math.radians(65), math.radians(90)), False)
sketch2.addGeometry(Part.LineSegment(App.Vector(42, 13, 0), App.Vector(42, 2, 0)), False)
sketch2.addConstraint(Sketcher.Constraint("Tangent", 0, 1, 1, 1))
sketch2.addConstraint(Sketcher.Constraint("Coincident", 1, 2, 2, 1))
sketch2.addConstraint(Sketcher.Constraint("Coincident", 2, 2, 3, 1))
sketch2.addConstraint(Sketcher.Constraint("Tangent", 3, 2, 4, 2))
sketch2.addConstraint(Sketcher.Constraint("Coincident", 4, 1, 5, 1))
sketch2.addConstraint(Sketcher.Constraint("Coincident", 5, 2, 6, 2))
sketch2.addConstraint(Sketcher.Constraint("Tangent", 6, 1, 7, 1))
sketch2.addConstraint(Sketcher.Constraint("Coincident", 7, 2, 8, 1))
sketch2.addConstraint(Sketcher.Constraint("Coincident", 8, 2, 9, 1))
sketch2.addConstraint(Sketcher.Constraint("Tangent", 9, 2, 10, 2))
sketch2.addConstraint(Sketcher.Constraint("Coincident", 10, 1, 11, 1))
sketch2.addConstraint(Sketcher.Constraint("Coincident", 11, 2, 0, 2))
sketch2.addConstraint(Sketcher.Constraint("Horizontal", 1))
sketch2.addConstraint(Sketcher.Constraint("Vertical", 2))
sketch2.addConstraint(Sketcher.Constraint("Horizontal", 3))
sketch2.addConstraint(Sketcher.Constraint("Vertical", 5))
sketch2.addConstraint(Sketcher.Constraint("Horizontal", 7))
sketch2.addConstraint(Sketcher.Constraint("Vertical", 8))
sketch2.addConstraint(Sketcher.Constraint("Horizontal", 9))
sketch2.addConstraint(Sketcher.Constraint("Vertical", 11))
sketch2.addConstraint(Sketcher.Constraint("Equal", 0, 4))
sketch2.addConstraint(Sketcher.Constraint("Equal", 4, 6))
sketch2.addConstraint(Sketcher.Constraint("Equal", 6, 10))
sketch2.addConstraint(Sketcher.Constraint("PointOnObject", 0, 1, -1))
sketch2.addConstraint(Sketcher.Constraint("Vertical", 0, 3, 4, 3))
sketch2.addConstraint(Sketcher.Constraint("Vertical", 4, 3, 6, 3))
sketch2.addConstraint(Sketcher.Constraint("Vertical", 6, 3, 10, 3))
sketch2.addConstraint(Sketcher.Constraint("Vertical", 5, 2, 10, 1))
sketch2.addConstraint(Sketcher.Constraint("Equal", 5, 11))
sketch2.addConstraint(Sketcher.Constraint("Radius", 0, 26.0))
sketch2.addConstraint(Sketcher.Constraint("DistanceY", 2, 1, 2, 2, 47.7))
sketch2.addConstraint(Sketcher.Constraint("DistanceY", 5, 2, 5, 1, 10.8))
sketch2.addConstraint(Sketcher.Constraint("DistanceY", 8, 2, 8, 1, 16.1))
sketch2.addConstraint(Sketcher.Constraint("DistanceX", -1, 1, 7, 2, 25.0))
sketch2.addConstraint(Sketcher.Constraint("DistanceX", 4, 1, 2, 2, 10.0))
sketch2.addConstraint(Sketcher.Constraint("DistanceX", -1, 1, 1, 2, 52.5))
groove = body.newObject("PartDesign::Groove", "Groove")
groove.Profile = sketch2
groove.ReferenceAxis = (sketch2, ["V_Axis"])
groove.Angle = 360

sketch3 = body.newObject("Sketcher::SketchObject", "Sketch002")
sketch3.AttachmentSupport = (doc.getObject("XY_Plane"), [""])
sketch3.MapMode = "FlatFace"
sketch3.addGeometry(Part.Circle(App.Vector(0, 0, 0), App.Vector(0, 0, 1), 25), False)
sketch3.addConstraint(Sketcher.Constraint("Coincident", 0, 3, -1, 1))
sketch3.addConstraint(Sketcher.Constraint("Diameter", 0, 50.0))
pad2 = body.newObject("PartDesign::Pad", "Pad001")
pad2.Profile = sketch3
pad2.Length = 65

sketch4 = body.newObject("Sketcher::SketchObject", "Sketch003")
sketch4.AttachmentSupport = (doc.getObject("XY_Plane"), [""])
sketch4.MapMode = "FlatFace"
sketch4.addGeometry(Part.Circle(App.Vector(0, 0, 0), App.Vector(0, 0, 1), 8), False)
sketch4.addConstraint(Sketcher.Constraint("Coincident", 0, 3, -1, 1))
sketch4.addConstraint(Sketcher.Constraint("Diameter", 0, 16.0))
pocket1 = body.newObject("PartDesign::Pocket", "Pocket")
pocket1.Profile = sketch4
pocket1.Type = "ThroughAll"
pocket1.Midplane = True

doc.recompute()
